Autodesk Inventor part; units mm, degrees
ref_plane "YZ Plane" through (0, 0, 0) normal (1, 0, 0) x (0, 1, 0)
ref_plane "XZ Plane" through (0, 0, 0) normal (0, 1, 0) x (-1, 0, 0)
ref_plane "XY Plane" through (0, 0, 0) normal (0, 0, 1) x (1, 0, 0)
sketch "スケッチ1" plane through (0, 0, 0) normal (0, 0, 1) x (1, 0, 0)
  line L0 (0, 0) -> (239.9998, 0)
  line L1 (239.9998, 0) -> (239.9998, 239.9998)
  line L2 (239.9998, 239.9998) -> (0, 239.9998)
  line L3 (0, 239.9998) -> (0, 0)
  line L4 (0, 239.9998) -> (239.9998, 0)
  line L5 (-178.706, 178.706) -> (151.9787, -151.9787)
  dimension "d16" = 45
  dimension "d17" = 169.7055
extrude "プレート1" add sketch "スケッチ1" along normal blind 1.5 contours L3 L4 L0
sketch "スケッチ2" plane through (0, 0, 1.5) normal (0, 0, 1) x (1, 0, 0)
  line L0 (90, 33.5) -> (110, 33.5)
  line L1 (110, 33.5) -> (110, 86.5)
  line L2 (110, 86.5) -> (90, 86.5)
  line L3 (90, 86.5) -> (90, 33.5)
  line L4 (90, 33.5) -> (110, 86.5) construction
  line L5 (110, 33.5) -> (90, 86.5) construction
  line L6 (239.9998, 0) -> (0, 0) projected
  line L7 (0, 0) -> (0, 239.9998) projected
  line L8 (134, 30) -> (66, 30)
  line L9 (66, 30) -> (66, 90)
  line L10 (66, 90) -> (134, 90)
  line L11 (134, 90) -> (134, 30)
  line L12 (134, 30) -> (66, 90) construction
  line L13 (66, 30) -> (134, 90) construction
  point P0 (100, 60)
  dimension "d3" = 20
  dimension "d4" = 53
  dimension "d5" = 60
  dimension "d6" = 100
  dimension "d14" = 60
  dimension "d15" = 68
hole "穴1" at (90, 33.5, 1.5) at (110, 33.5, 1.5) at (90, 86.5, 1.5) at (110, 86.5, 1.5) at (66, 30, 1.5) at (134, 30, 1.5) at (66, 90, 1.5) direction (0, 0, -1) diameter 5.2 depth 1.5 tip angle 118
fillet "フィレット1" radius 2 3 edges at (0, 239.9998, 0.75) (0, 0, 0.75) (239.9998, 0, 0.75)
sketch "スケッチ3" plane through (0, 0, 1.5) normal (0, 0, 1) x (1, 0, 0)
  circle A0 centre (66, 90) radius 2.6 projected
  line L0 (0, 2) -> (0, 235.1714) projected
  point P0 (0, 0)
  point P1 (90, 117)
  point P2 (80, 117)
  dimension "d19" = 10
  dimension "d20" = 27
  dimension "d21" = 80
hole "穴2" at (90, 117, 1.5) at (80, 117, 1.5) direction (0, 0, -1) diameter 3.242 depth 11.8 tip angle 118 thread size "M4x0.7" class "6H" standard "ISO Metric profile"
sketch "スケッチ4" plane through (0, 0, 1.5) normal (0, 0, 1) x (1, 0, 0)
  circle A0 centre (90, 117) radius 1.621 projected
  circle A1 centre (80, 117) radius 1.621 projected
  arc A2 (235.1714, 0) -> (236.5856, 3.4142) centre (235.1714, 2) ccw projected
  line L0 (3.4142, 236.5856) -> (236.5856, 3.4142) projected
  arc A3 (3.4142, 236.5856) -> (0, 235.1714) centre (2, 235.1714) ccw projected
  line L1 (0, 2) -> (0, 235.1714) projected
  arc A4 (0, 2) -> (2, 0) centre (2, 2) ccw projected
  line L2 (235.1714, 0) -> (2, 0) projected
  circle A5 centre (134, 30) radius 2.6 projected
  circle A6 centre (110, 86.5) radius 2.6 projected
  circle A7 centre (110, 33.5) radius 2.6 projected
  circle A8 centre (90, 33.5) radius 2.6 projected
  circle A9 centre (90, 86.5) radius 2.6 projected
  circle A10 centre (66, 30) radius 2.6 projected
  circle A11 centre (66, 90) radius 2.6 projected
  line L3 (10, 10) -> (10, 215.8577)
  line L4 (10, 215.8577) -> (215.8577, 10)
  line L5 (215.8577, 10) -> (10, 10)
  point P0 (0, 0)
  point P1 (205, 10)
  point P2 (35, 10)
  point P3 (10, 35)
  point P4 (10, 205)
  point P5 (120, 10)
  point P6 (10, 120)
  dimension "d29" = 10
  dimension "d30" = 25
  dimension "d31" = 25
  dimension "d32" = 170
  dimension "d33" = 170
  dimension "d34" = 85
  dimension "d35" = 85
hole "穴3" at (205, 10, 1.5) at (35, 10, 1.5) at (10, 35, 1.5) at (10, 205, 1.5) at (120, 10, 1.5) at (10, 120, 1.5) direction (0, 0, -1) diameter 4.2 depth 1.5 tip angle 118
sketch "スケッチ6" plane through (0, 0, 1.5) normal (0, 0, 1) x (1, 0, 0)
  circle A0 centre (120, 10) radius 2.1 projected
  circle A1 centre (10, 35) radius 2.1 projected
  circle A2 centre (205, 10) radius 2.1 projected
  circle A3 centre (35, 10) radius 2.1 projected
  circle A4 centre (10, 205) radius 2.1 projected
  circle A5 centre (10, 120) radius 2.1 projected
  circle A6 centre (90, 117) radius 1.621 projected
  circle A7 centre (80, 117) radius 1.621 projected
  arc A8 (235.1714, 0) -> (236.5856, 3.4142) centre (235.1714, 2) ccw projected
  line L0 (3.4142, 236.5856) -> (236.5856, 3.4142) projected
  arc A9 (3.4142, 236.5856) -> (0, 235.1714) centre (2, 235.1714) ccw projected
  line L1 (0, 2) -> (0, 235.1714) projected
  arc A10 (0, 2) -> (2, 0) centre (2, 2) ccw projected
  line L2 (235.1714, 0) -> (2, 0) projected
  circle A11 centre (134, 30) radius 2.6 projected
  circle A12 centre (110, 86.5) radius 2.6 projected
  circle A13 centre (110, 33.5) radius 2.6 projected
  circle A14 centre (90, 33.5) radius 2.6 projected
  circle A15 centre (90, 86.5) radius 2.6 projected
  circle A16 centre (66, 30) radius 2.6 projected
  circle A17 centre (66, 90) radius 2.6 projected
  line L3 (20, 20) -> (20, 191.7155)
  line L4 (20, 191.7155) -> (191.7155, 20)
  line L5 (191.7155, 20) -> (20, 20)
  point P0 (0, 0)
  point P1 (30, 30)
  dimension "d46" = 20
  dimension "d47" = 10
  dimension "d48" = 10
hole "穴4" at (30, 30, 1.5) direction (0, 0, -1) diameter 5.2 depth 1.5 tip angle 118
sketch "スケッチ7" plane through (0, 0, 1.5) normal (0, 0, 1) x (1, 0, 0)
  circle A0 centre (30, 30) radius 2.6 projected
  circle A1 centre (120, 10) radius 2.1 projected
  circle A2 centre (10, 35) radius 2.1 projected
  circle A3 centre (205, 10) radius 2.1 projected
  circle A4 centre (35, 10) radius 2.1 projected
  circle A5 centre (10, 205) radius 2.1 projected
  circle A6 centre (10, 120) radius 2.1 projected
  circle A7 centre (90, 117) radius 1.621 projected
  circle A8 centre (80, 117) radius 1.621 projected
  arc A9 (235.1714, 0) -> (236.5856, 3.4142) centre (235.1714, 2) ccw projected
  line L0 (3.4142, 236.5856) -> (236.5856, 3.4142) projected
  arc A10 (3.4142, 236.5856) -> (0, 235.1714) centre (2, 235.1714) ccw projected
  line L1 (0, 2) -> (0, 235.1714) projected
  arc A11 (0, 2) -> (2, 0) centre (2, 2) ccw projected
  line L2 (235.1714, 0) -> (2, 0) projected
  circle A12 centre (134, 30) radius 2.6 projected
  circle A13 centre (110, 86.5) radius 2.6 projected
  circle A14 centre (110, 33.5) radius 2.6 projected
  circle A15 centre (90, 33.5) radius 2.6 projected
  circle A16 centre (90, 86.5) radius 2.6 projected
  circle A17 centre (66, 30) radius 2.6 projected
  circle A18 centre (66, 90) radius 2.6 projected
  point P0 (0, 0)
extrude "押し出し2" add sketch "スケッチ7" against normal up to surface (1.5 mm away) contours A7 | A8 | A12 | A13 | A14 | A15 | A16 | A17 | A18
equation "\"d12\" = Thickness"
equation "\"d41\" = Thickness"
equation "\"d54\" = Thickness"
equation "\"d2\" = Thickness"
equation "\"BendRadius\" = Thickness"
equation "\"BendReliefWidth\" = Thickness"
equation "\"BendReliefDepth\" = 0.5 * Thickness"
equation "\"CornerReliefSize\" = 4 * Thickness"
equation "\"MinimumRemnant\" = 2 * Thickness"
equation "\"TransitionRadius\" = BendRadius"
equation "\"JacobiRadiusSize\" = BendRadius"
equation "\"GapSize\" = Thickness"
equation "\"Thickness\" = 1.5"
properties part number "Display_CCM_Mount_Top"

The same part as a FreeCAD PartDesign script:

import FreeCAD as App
import Part
import Sketcher
from FreeCAD import Vector
Q = App.Units.Quantity


def edges_at(feature, points):
    """Names of the edges that pass closest to the given points."""
    edges = feature.Shape.Edges
    near = lambda p: min(range(len(edges)), key=lambda i: edges[i].distToShape(Part.Vertex(*p))[0])
    return sorted({f"Edge{near(p) + 1}" for p in points})

doc = App.newDocument("Part")
body = doc.addObject("PartDesign::Body", "Body")

# Sketch on XY plane
sketch1 = doc.addObject("Sketcher::SketchObject", "Sketch")
body.addObject(sketch1)
sketch1.AttachmentSupport = (doc.XY_Plane, [""])
sketch1.MapMode = "FlatFace"
sketch1.addGeometry([
    Part.LineSegment(Vector(0, 240, 0), Vector(0, 0, 0)),
    Part.LineSegment(Vector(0, 0, 0), Vector(240, 0, 0)),
    Part.LineSegment(Vector(240, 0, 0), Vector(0, 240, 0)),
], False)
sketch1.addConstraint([
    Sketcher.Constraint("Coincident", 0, 2, 1, 1),
    Sketcher.Constraint("Coincident", 1, 2, 2, 1),
    Sketcher.Constraint("Coincident", 2, 2, 0, 1),
    Sketcher.Constraint("Vertical", 0),
    Sketcher.Constraint("Horizontal", 1),
    Sketcher.Constraint("Coincident", 0, 2, -1, 1),
    Sketcher.Constraint("Equal", 1, 0),
    Sketcher.Constraint("Distance", 2, Q("339.411 mm")),
])
pad1 = doc.addObject("PartDesign::Pad", "Pad")
body.addObject(pad1)
pad1.Profile = sketch1
pad1.Length = 1.5

# Sketch on XY plane
sketch2 = doc.addObject("Sketcher::SketchObject", "Sketch001")
body.addObject(sketch2)
sketch2.AttachmentSupport = (doc.XY_Plane, [""])
sketch2.MapMode = "FlatFace"
sketch2.AttachmentOffset = App.Placement(Vector(0, 0, 1.5), App.Rotation())
sketch2.addGeometry([
    Part.Circle(Vector(90, 33.5, 0), Vector(0, 0, 1), 2.6),  # 0
    Part.Circle(Vector(110, 33.5, 0), Vector(0, 0, 1), 2.6),  # 1
    Part.Circle(Vector(90, 86.5, 0), Vector(0, 0, 1), 2.6),  # 2
    Part.Circle(Vector(110, 86.5, 0), Vector(0, 0, 1), 2.6),  # 3
    Part.Circle(Vector(66, 30, 0), Vector(0, 0, 1), 2.6),  # 4
    Part.Circle(Vector(134, 30, 0), Vector(0, 0, 1), 2.6),  # 5
    Part.Circle(Vector(66, 90, 0), Vector(0, 0, 1), 2.6),  # 6
], False)
sketch2.addConstraint([
    Sketcher.Constraint("Equal", 0, 1),
    Sketcher.Constraint("Equal", 1, 2),
    Sketcher.Constraint("Equal", 2, 3),
    Sketcher.Constraint("Equal", 3, 4),
    Sketcher.Constraint("Equal", 4, 5),
    Sketcher.Constraint("Equal", 5, 6),
    Sketcher.Constraint("Horizontal", 0, 3, 1, 3),
    Sketcher.Constraint("Horizontal", 2, 3, 3, 3),
    Sketcher.Constraint("Horizontal", 4, 3, 5, 3),
    Sketcher.Constraint("Vertical", 0, 3, 2, 3),
    Sketcher.Constraint("Vertical", 1, 3, 3, 3),
    Sketcher.Constraint("Vertical", 4, 3, 6, 3),
    Sketcher.Constraint("Diameter", 0, Q("5.2 mm")),
    Sketcher.Constraint("DistanceX", -1, 1, 0, 3, Q("90 mm")),
    Sketcher.Constraint("DistanceX", -1, 1, 1, 3, Q("110 mm")),
    Sketcher.Constraint("DistanceX", -1, 1, 4, 3, Q("66 mm")),
    Sketcher.Constraint("DistanceY", -1, 1, 4, 3, Q("30 mm")),
    Sketcher.Constraint("DistanceX", -1, 1, 5, 3, Q("134 mm")),
    Sketcher.Constraint("DistanceY", -1, 1, 6, 3, Q("90 mm")),
    Sketcher.Constraint("DistanceY", 0, 3, 2, 3, Q("53 mm")),
    Sketcher.Constraint("DistanceY", -1, 1, 0, 3, Q("33.5 mm")),
])
doc.recompute()
hole = doc.addObject("PartDesign::Hole", "Hole")
body.addObject(hole)
hole.Profile = sketch2
hole.ThreadType = "None"
hole.Diameter = 5.2
hole.DepthType = "Dimension"
hole.Depth = 1.5
hole.DrillPoint = "Angled"
hole.DrillPointAngle = 118
doc.recompute()

fillet = doc.addObject("PartDesign::Fillet", "Fillet")
body.addObject(fillet)
fillet.Base = (hole, edges_at(hole, [(0, 240, 0.75), (0, 0, 0.75), (240, 0, 0.75)]))
fillet.Radius = 2

# Sketch on XY plane
sketch3 = doc.addObject("Sketcher::SketchObject", "Sketch002")
body.addObject(sketch3)
sketch3.AttachmentSupport = (doc.XY_Plane, [""])
sketch3.MapMode = "FlatFace"
sketch3.AttachmentOffset = App.Placement(Vector(0, 0, 1.5), App.Rotation())
sketch3.addGeometry([
    Part.Circle(Vector(90, 117, 0), Vector(0, 0, 1), 1.6),
    Part.Circle(Vector(80, 117, 0), Vector(0, 0, 1), 1.6),
], False)
sketch3.addConstraint([
    Sketcher.Constraint("Equal", 0, 1),
    Sketcher.Constraint("Horizontal", 0, 3, 1, 3),
    Sketcher.Constraint("Diameter", 0, Q("3.242 mm")),
    Sketcher.Constraint("DistanceX", -1, 1, 0, 3, Q("90 mm")),
    Sketcher.Constraint("DistanceY", -1, 1, 0, 3, Q("117 mm")),
    Sketcher.Constraint("DistanceX", -1, 1, 1, 3, Q("80 mm")),
])
doc.recompute()
hole2 = doc.addObject("PartDesign::Hole", "Hole001")
body.addObject(hole2)
hole2.Profile = sketch3
hole2.ThreadType = "None"
hole2.Diameter = 3.242
hole2.DepthType = "Dimension"
hole2.Depth = 11.8
hole2.DrillPoint = "Angled"
hole2.DrillPointAngle = 118

# Sketch on XY plane
sketch4 = doc.addObject("Sketcher::SketchObject", "Sketch003")
body.addObject(sketch4)
sketch4.AttachmentSupport = (doc.XY_Plane, [""])
sketch4.MapMode = "FlatFace"
sketch4.AttachmentOffset = App.Placement(Vector(0, 0, 1.5), App.Rotation())
sketch4.addGeometry([
    Part.Circle(Vector(205, 10, 0), Vector(0, 0, 1), 2.1),  # 0
    Part.Circle(Vector(35, 10, 0), Vector(0, 0, 1), 2.1),  # 1
    Part.Circle(Vector(10, 35, 0), Vector(0, 0, 1), 2.1),  # 2
    Part.Circle(Vector(10, 205, 0), Vector(0, 0, 1), 2.1),  # 3
    Part.Circle(Vector(120, 10, 0), Vector(0, 0, 1), 2.1),  # 4
    Part.Circle(Vector(10, 120, 0), Vector(0, 0, 1), 2.1),  # 5
], False)
sketch4.addConstraint([
    Sketcher.Constraint("Equal", 0, 1),
    Sketcher.Constraint("Equal", 1, 2),
    Sketcher.Constraint("Equal", 2, 3),
    Sketcher.Constraint("Equal", 3, 4),
    Sketcher.Constraint("Equal", 4, 5),
    Sketcher.Constraint("Horizontal", 0, 3, 1, 3),
    Sketcher.Constraint("Horizontal", 1, 3, 4, 3),
    Sketcher.Constraint("Vertical", 2, 3, 3, 3),
    Sketcher.Constraint("Vertical", 3, 3, 5, 3),
    Sketcher.Constraint("Diameter", 0, Q("4.2 mm")),
    Sketcher.Constraint("DistanceX", -1, 1, 0, 3, Q("205 mm")),
    Sketcher.Constraint("DistanceY", -1, 1, 0, 3, Q("10 mm")),
    Sketcher.Constraint("DistanceX", -1, 1, 1, 3, Q("35 mm")),
    Sketcher.Constraint("DistanceX", -1, 1, 2, 3, Q("10 mm")),
    Sketcher.Constraint("DistanceY", -1, 1, 2, 3, Q("35 mm")),
    Sketcher.Constraint("DistanceY", -1, 1, 3, 3, Q("205 mm")),
    Sketcher.Constraint("DistanceX", -1, 1, 4, 3, Q("120 mm")),
    Sketcher.Constraint("DistanceY", -1, 1, 5, 3, Q("120 mm")),
])
doc.recompute()
hole3 = doc.addObject("PartDesign::Hole", "Hole002")
body.addObject(hole3)
hole3.Profile = sketch4
hole3.ThreadType = "None"
hole3.Diameter = 4.2
hole3.DepthType = "Dimension"
hole3.Depth = 1.5
hole3.DrillPoint = "Angled"
hole3.DrillPointAngle = 118

# Sketch on XY plane
sketch5 = doc.addObject("Sketcher::SketchObject", "Sketch004")
body.addObject(sketch5)
sketch5.AttachmentSupport = (doc.XY_Plane, [""])
sketch5.MapMode = "FlatFace"
sketch5.AttachmentOffset = App.Placement(Vector(0, 0, 1.5), App.Rotation())
sketch5.addGeometry(Part.Circle(Vector(30, 30, 0), Vector(0, 0, 1), 2.6), False)
sketch5.addConstraint([
    Sketcher.Constraint("Diameter", 0, Q("5.2 mm")),
    Sketcher.Constraint("DistanceX", -1, 1, 0, 3, Q("30 mm")),
    Sketcher.Constraint("DistanceY", -1, 1, 0, 3, Q("30 mm")),
])
doc.recompute()
hole4 = doc.addObject("PartDesign::Hole", "Hole003")
body.addObject(hole4)
hole4.Profile = sketch5
hole4.ThreadType = "None"
hole4.Diameter = 5.2
hole4.DepthType = "Dimension"
hole4.Depth = 1.5
hole4.DrillPoint = "Angled"
hole4.DrillPointAngle = 118

# Sketch on XY plane
sketch6 = doc.addObject("Sketcher::SketchObject", "Sketch005")
body.addObject(sketch6)
sketch6.AttachmentSupport = (doc.XY_Plane, [""])
sketch6.MapMode = "FlatFace"
sketch6.AttachmentOffset = App.Placement(Vector(0, 0, 1.5), App.Rotation())
sketch6.addGeometry([
    Part.Circle(Vector(90, 117, 0), Vector(0, 0, 1), 1.6),  # 0
    Part.Circle(Vector(80, 117, 0), Vector(0, 0, 1), 1.6),  # 1
    Part.Circle(Vector(134, 30, 0), Vector(0, 0, 1), 2.6),  # 2
    Part.Circle(Vector(110, 86.5, 0), Vector(0, 0, 1), 2.6),  # 3
    Part.Circle(Vector(110, 33.5, 0), Vector(0, 0, 1), 2.6),  # 4
    Part.Circle(Vector(90, 33.5, 0), Vector(0, 0, 1), 2.6),  # 5
    Part.Circle(Vector(90, 86.5, 0), Vector(0, 0, 1), 2.6),  # 6
    Part.Circle(Vector(66, 30, 0), Vector(0, 0, 1), 2.6),  # 7
    Part.Circle(Vector(66, 90, 0), Vector(0, 0, 1), 2.6),  # 8
], False)
sketch6.addConstraint([
    Sketcher.Constraint("Equal", 0, 1),
    Sketcher.Constraint("Equal", 2, 3),
    Sketcher.Constraint("Equal", 3, 4),
    Sketcher.Constraint("Equal", 4, 5),
    Sketcher.Constraint("Equal", 5, 6),
    Sketcher.Constraint("Equal", 6, 7),
    Sketcher.Constraint("Equal", 7, 8),
    Sketcher.Constraint("Horizontal", 0, 3, 1, 3),
    Sketcher.Constraint("Horizontal", 4, 3, 5, 3),
    Sketcher.Constraint("Horizontal", 3, 3, 6, 3),
    Sketcher.Constraint("Horizontal", 2, 3, 7, 3),
    Sketcher.Constraint("Vertical", 3, 3, 4, 3),
    Sketcher.Constraint("Vertical", 0, 3, 5, 3),
    Sketcher.Constraint("Vertical", 5, 3, 6, 3),
    Sketcher.Constraint("Vertical", 7, 3, 8, 3),
    Sketcher.Constraint("Diameter", 2, Q("5.2 mm")),
    Sketcher.Constraint("Diameter", 0, Q("3.242 mm")),
    Sketcher.Constraint("DistanceX", -1, 1, 0, 3, Q("90 mm")),
    Sketcher.Constraint("DistanceY", -1, 1, 0, 3, Q("117 mm")),
    Sketcher.Constraint("DistanceX", -1, 1, 1, 3, Q("80 mm")),
    Sketcher.Constraint("DistanceX", -1, 1, 2, 3, Q("134 mm")),
    Sketcher.Constraint("DistanceY", -1, 1, 2, 3, Q("30 mm")),
    Sketcher.Constraint("DistanceX", -1, 1, 3, 3, Q("110 mm")),
    Sketcher.Constraint("DistanceX", -1, 1, 7, 3, Q("66 mm")),
    Sketcher.Constraint("DistanceY", -1, 1, 8, 3, Q("90 mm")),
    Sketcher.Constraint("DistanceY", 4, 3, 3, 3, Q("53 mm")),
    Sketcher.Constraint("DistanceY", -1, 1, 3, 3, Q("86.5 mm")),
])
pad2 = doc.addObject("PartDesign::Pad", "Pad001")
body.addObject(pad2)
pad2.Profile = sketch6
pad2.Length = 1.5
pad2.Reversed = True

doc.recompute()
